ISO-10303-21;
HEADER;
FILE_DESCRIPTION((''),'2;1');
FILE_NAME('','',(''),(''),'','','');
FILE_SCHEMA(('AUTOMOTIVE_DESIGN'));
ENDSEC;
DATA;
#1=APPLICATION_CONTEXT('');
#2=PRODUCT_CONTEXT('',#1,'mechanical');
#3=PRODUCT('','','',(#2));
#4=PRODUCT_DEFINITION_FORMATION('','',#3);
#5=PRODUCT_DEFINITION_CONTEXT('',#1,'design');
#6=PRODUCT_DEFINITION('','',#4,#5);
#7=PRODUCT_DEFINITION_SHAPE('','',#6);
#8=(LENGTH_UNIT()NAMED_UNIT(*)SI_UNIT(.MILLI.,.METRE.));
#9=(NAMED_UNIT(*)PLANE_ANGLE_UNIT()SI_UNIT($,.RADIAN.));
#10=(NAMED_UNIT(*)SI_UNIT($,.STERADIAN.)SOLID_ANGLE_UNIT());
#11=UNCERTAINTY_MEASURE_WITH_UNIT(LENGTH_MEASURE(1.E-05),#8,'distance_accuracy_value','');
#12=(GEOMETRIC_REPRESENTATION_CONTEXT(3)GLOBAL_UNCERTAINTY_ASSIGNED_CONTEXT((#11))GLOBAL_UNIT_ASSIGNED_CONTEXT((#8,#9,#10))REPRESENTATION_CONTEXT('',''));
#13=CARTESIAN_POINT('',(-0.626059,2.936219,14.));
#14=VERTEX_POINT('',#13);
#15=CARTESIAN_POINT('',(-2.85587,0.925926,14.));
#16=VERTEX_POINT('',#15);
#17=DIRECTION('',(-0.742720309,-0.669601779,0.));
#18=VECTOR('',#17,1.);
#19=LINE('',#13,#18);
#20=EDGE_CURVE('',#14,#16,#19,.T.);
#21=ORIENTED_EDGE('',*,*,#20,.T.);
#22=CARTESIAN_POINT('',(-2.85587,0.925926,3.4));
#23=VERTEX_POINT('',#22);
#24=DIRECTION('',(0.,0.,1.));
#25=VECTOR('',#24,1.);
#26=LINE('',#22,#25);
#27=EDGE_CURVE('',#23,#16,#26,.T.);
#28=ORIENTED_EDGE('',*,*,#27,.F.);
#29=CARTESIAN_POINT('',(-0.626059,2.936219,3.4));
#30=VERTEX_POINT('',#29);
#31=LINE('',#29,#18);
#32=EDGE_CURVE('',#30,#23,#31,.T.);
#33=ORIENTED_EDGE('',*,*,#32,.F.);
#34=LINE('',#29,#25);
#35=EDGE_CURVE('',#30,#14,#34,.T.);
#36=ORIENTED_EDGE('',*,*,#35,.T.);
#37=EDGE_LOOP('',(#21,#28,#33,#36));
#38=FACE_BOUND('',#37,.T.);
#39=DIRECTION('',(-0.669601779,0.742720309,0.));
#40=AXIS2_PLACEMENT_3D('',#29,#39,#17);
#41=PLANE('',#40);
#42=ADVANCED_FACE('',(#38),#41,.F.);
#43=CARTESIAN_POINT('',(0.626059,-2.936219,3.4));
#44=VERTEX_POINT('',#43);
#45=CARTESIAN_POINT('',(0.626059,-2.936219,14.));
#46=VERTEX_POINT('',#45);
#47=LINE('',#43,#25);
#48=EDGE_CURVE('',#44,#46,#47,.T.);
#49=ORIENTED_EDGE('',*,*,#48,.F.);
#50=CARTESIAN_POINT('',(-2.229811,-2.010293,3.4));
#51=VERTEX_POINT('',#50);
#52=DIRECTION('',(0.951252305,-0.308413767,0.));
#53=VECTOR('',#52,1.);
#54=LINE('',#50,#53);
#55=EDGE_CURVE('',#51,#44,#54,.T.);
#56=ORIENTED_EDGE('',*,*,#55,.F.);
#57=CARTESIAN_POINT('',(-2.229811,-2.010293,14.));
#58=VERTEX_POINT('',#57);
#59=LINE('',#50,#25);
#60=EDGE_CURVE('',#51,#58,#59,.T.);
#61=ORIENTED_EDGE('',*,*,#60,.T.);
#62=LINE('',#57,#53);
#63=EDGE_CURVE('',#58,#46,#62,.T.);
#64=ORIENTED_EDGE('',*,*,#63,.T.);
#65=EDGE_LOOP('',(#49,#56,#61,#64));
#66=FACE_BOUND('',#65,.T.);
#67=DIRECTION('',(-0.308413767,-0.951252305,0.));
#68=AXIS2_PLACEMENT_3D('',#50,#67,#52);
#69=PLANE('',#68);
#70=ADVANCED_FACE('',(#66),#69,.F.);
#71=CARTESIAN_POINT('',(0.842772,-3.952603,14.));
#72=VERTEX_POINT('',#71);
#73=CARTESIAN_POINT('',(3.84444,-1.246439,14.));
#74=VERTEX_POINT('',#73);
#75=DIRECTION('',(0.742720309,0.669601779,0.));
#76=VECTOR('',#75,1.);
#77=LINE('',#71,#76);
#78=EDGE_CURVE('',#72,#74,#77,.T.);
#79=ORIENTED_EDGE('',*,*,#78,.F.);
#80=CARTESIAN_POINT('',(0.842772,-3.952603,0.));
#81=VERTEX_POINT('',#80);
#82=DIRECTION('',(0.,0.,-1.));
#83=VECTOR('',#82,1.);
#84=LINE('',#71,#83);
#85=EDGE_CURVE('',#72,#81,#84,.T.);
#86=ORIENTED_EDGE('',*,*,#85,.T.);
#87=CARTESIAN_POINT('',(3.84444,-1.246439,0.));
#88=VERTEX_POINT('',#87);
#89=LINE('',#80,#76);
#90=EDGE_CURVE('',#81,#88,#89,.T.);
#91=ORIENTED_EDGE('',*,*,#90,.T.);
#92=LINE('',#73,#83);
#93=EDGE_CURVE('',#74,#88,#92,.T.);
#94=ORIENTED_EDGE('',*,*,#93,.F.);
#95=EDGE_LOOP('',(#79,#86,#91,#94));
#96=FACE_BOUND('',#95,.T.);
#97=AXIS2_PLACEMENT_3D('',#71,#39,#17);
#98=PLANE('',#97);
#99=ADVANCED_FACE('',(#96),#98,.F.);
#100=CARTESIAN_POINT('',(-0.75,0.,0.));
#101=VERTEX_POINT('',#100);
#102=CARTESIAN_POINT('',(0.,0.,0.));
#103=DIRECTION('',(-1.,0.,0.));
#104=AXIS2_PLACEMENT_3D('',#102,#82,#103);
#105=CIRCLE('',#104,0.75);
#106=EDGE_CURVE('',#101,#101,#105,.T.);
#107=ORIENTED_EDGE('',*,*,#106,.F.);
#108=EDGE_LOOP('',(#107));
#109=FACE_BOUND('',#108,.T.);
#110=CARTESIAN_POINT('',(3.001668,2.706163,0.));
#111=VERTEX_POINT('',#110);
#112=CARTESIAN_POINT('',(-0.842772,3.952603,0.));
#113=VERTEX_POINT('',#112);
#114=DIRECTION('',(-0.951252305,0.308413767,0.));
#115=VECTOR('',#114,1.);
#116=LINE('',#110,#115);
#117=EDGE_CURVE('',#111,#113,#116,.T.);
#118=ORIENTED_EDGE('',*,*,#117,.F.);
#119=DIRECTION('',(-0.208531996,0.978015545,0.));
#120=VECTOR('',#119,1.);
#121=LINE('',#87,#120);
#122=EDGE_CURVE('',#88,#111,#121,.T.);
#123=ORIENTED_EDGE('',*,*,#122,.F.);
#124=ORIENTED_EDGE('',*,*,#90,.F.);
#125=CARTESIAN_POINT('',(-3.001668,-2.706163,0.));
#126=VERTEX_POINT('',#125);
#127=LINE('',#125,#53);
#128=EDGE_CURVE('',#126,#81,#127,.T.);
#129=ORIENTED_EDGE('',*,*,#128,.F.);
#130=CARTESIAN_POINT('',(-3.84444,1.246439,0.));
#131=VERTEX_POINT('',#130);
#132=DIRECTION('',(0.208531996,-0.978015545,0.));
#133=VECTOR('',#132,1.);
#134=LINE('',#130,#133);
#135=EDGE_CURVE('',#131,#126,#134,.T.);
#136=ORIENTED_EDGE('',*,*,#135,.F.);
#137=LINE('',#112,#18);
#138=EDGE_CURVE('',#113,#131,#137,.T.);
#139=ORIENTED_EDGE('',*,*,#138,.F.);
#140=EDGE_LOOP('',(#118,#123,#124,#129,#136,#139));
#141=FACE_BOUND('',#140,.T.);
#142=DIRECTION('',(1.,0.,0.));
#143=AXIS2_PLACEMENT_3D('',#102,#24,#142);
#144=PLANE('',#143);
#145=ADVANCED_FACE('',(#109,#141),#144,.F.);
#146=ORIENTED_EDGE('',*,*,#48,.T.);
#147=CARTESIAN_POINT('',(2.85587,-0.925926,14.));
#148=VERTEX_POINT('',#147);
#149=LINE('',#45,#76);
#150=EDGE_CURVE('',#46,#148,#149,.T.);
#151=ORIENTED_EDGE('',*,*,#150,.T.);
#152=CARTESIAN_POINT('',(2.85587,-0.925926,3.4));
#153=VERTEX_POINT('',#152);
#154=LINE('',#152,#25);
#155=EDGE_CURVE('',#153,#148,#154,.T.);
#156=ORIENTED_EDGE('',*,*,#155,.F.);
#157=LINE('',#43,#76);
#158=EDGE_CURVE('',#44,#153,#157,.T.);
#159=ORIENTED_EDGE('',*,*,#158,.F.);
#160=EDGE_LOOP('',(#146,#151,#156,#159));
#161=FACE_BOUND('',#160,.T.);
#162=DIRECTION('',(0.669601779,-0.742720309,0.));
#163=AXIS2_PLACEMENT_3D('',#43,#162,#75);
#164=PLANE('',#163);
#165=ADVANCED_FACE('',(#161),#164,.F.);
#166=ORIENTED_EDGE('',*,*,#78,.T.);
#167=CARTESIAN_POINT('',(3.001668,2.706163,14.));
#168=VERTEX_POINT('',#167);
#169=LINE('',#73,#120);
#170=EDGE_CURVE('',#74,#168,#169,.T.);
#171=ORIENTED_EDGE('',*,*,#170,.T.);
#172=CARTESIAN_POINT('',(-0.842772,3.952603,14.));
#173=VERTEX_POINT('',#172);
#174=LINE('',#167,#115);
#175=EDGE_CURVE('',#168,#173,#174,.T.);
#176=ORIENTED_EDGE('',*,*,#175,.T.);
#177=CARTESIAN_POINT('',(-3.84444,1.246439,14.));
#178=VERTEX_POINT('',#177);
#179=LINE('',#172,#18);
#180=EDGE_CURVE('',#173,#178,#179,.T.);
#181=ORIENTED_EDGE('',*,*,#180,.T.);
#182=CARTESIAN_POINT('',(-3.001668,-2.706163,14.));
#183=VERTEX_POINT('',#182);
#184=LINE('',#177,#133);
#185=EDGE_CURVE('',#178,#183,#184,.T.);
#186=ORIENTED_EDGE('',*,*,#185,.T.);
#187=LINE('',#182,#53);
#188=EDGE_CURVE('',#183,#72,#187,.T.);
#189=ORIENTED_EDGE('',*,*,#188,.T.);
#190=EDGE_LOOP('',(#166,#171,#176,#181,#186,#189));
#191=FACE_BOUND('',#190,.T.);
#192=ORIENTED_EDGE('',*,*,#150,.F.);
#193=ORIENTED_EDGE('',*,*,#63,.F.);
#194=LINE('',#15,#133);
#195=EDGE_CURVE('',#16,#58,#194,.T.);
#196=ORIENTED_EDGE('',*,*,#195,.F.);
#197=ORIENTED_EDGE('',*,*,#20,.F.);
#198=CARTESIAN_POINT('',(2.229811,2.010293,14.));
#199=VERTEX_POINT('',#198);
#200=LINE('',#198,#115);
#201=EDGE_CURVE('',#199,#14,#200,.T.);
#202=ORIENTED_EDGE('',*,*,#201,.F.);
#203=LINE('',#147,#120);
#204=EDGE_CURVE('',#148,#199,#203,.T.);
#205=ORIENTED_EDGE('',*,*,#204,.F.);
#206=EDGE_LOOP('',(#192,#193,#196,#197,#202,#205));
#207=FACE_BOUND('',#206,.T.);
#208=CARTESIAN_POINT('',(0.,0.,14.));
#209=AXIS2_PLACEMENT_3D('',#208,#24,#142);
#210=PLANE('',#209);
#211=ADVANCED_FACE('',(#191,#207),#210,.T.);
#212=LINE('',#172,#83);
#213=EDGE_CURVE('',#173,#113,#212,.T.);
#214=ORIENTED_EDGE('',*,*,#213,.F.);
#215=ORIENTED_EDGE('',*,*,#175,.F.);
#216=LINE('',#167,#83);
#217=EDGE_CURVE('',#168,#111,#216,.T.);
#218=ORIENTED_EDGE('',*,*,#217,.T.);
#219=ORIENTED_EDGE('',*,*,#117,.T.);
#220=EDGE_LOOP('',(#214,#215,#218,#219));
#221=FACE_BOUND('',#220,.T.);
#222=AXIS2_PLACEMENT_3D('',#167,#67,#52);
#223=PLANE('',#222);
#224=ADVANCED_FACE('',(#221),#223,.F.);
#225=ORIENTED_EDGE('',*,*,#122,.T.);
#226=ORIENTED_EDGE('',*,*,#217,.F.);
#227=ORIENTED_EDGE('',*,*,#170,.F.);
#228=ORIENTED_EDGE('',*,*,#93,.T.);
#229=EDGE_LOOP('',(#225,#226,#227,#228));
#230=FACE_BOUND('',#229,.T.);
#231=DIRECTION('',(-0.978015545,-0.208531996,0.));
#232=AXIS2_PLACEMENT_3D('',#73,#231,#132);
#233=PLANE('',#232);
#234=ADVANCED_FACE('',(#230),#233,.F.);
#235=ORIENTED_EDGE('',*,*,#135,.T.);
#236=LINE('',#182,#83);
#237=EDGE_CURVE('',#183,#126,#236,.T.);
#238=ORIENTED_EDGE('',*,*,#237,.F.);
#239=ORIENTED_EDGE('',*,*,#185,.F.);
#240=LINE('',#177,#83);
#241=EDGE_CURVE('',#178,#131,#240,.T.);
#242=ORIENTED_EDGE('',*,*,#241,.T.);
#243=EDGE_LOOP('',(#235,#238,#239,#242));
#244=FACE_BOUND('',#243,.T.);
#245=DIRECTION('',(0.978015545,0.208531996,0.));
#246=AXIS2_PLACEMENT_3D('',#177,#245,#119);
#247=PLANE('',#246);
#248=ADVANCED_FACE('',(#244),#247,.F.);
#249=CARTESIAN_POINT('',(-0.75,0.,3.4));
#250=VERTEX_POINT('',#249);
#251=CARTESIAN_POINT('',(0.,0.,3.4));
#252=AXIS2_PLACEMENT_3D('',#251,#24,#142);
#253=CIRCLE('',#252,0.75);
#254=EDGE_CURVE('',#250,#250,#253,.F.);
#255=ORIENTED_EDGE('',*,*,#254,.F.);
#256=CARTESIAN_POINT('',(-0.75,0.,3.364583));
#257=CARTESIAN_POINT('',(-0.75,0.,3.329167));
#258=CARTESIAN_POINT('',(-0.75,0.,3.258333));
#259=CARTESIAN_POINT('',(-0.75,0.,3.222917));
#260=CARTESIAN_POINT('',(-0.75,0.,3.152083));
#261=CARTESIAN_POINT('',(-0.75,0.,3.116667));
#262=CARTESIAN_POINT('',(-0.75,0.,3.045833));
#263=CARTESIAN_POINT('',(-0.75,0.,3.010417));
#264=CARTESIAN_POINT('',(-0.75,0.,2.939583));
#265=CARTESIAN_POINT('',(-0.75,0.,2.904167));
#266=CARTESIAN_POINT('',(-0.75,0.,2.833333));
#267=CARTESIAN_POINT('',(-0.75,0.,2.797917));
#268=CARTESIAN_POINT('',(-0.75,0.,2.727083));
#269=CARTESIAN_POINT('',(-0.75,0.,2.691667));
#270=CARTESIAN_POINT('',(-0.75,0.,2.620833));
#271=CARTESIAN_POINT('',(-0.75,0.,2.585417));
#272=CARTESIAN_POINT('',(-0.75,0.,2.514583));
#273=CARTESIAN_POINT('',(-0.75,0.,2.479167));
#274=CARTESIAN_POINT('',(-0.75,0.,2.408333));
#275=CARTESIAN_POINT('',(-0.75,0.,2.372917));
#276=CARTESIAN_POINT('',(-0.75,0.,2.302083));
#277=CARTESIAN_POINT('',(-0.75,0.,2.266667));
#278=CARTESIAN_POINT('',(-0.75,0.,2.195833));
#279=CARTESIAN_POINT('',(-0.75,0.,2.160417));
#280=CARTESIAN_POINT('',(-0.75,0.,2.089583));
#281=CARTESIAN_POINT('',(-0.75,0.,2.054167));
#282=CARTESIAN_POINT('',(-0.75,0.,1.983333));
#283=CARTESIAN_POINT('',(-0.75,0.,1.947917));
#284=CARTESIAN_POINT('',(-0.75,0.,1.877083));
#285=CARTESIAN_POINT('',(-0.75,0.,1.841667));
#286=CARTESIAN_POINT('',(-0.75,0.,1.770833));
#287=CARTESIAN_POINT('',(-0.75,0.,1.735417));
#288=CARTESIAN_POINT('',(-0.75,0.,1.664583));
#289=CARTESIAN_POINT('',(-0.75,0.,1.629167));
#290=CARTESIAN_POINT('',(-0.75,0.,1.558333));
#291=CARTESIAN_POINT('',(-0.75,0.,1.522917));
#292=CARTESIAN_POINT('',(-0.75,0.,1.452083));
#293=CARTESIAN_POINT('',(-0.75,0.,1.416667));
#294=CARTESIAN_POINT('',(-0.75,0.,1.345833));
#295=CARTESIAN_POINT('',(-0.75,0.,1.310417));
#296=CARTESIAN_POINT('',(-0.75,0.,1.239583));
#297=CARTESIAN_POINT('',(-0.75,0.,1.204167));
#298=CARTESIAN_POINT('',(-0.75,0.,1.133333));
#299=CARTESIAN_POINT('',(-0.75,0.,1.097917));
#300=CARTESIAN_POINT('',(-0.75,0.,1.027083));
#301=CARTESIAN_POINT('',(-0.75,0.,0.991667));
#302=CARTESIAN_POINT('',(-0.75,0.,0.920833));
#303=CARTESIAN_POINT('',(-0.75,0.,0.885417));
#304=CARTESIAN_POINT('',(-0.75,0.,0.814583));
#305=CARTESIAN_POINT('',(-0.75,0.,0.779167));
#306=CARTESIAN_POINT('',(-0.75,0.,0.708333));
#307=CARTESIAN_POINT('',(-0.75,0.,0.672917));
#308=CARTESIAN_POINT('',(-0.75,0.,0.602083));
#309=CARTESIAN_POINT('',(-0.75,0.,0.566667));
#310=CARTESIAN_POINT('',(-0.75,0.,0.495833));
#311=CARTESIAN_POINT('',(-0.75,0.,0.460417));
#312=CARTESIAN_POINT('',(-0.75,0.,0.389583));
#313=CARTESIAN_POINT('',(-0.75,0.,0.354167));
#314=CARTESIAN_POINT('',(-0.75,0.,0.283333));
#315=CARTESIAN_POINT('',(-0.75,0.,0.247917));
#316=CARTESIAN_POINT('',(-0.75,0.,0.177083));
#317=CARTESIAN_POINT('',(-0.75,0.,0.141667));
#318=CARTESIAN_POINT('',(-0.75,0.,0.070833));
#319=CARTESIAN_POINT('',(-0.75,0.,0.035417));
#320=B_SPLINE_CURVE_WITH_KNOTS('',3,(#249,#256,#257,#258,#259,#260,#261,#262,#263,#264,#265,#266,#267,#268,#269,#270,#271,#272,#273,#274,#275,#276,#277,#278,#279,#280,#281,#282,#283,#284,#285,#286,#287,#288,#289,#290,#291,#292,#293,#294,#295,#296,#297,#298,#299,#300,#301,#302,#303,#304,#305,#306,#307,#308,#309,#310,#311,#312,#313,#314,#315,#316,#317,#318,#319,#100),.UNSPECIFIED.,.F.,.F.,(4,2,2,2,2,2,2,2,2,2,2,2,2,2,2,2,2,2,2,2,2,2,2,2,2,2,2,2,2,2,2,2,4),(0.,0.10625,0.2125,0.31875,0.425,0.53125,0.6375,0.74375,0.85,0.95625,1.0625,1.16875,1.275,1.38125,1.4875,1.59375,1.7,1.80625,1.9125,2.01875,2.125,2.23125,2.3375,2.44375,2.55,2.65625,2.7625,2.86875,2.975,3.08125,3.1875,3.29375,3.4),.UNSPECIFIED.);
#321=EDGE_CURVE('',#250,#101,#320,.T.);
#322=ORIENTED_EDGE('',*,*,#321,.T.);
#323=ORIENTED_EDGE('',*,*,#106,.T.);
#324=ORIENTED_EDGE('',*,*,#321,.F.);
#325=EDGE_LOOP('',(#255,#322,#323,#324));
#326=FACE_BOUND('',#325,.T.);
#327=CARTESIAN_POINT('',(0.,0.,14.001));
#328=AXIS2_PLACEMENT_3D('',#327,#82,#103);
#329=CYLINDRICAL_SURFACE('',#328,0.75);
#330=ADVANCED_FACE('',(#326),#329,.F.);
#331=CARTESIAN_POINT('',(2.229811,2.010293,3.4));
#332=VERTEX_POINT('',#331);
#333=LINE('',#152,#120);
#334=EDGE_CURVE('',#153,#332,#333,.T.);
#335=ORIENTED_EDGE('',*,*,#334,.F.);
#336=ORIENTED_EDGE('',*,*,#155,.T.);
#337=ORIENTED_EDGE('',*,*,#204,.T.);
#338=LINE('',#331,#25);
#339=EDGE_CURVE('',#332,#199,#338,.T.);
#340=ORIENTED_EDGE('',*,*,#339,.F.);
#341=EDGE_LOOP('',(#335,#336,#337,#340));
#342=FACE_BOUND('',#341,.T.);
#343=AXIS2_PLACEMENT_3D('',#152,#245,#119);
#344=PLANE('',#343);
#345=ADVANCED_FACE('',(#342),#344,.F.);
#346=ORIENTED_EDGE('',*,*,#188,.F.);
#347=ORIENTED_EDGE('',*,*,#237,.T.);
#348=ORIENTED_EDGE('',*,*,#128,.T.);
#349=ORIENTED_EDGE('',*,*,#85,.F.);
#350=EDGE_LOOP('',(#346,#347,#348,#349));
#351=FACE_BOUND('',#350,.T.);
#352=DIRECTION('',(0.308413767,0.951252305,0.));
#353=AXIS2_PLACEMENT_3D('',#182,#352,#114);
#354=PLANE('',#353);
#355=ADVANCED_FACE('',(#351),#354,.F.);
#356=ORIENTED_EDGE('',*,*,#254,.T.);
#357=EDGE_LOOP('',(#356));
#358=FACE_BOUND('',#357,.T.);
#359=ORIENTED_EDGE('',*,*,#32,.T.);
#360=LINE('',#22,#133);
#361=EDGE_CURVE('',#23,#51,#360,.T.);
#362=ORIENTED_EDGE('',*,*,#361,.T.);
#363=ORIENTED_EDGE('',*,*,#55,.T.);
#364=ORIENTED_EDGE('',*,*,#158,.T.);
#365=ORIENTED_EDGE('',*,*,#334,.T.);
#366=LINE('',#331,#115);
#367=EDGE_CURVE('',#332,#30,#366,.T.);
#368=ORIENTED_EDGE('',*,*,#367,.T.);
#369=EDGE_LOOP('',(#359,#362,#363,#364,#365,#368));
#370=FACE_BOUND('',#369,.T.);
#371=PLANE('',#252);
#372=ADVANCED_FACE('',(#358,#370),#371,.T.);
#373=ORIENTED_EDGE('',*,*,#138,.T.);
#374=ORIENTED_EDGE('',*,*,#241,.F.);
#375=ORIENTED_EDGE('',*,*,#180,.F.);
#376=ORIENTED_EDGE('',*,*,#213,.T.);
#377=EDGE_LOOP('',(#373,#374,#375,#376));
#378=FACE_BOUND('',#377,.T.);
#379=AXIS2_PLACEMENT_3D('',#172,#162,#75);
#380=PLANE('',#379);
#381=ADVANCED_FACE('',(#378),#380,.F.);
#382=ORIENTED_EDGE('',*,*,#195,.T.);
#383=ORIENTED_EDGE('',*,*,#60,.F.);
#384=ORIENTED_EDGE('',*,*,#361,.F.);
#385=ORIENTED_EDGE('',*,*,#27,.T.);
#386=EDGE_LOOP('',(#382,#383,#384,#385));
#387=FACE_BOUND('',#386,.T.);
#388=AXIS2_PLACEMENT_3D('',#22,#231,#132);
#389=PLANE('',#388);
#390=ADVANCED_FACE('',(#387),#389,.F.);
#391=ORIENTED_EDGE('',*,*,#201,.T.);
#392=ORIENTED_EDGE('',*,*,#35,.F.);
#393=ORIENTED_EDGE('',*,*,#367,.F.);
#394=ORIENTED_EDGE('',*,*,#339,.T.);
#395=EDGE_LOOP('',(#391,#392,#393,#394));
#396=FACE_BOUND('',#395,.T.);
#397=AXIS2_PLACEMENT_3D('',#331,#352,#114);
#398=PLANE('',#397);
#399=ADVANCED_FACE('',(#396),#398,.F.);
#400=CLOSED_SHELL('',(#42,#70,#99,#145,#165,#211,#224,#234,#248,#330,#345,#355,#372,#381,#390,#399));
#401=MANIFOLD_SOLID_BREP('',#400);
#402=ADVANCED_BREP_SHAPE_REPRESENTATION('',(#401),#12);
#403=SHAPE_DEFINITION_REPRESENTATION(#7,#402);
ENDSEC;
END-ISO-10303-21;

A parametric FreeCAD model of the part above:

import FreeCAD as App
import Part
import Sketcher


def add_polygon(sketch, points):
    """Adds a closed chain of lines whose ends are joined by coincident constraints."""
    first, n = sketch.GeometryCount, len(points)
    for a, b in zip(points, points[1:] + points[:1]):
        sketch.addGeometry(Part.LineSegment(App.Vector(*a, 0), App.Vector(*b, 0)), False)
    for i in range(n):
        sketch.addConstraint(Sketcher.Constraint("Coincident", first + i, 2, first + (i + 1) % n, 1))

doc = App.newDocument("Part")
body = doc.addObject("PartDesign::Body", "Body")

sketch1 = body.newObject("Sketcher::SketchObject", "Sketch")
sketch1.AttachmentSupport = (doc.getObject("XY_Plane"), [""])
sketch1.MapMode = "FlatFace"
add_polygon(sketch1, [(-0.842772, 3.952603), (-3.84444, 1.246439), (-3.001668, -2.706163), (0.842772, -3.952603), (3.84444, -1.246439), (3.001668, 2.706163)])
sketch1.addConstraint([
    Sketcher.Constraint("Symmetric", 0, 2, 3, 2, -1, 1),
    Sketcher.Constraint("Symmetric", 1, 2, 4, 2, -1, 1),
    Sketcher.Constraint("Symmetric", 2, 2, 5, 2, -1, 1),
    Sketcher.Constraint("Equal", 0, 1),
    Sketcher.Constraint("Equal", 1, 2),
    Sketcher.Constraint("Distance", 0, 4.041452),
    Sketcher.Constraint("DistanceX", 0, 2, -1, 1, 3.84444),
    Sketcher.Constraint("DistanceY", -1, 1, 0, 2, 1.246439),
    Sketcher.Constraint("DistanceX", 1, 2, -1, 1, 3.001668),
])
pad1 = body.newObject("PartDesign::Pad", "Pad")
pad1.Profile = sketch1
pad1.Length = 14

sketch2 = body.newObject("Sketcher::SketchObject", "Sketch001")
sketch2.AttachmentSupport = (doc.getObject("XY_Plane"), [""])
sketch2.MapMode = "FlatFace"
sketch2.AttachmentOffset = App.Placement(App.Vector(0, 0, 14), App.Rotation())
add_polygon(sketch2, [(2.229811, 2.010293), (-0.626059, 2.936219), (-2.85587, 0.925926), (-2.229811, -2.010293), (0.626059, -2.936219), (2.85587, -0.925926)])
sketch2.addConstraint([
    Sketcher.Constraint("Symmetric", 0, 2, 3, 2, -1, 1),
    Sketcher.Constraint("Symmetric", 1, 2, 4, 2, -1, 1),
    Sketcher.Constraint("Symmetric", 2, 2, 5, 2, -1, 1),
    Sketcher.Constraint("Equal", 0, 1),
    Sketcher.Constraint("Equal", 1, 2),
    Sketcher.Constraint("Distance", 0, 3.002221),
    Sketcher.Constraint("DistanceX", 0, 2, -1, 1, 0.626059),
    Sketcher.Constraint("DistanceY", -1, 1, 0, 2, 2.936219),
    Sketcher.Constraint("DistanceX", 1, 2, -1, 1, 2.85587),
])
pocket1 = body.newObject("PartDesign::Pocket", "Pocket")
pocket1.Profile = sketch2
pocket1.Length = 10.6

sketch3 = body.newObject("Sketcher::SketchObject", "Sketch002")
sketch3.AttachmentSupport = (doc.getObject("XY_Plane"), [""])
sketch3.MapMode = "FlatFace"
sketch3.addGeometry(Part.Circle(App.Vector(0, 0, 0), App.Vector(0, 0, 1), 0.75), False)
sketch3.addConstraint([
    Sketcher.Constraint("Coincident", 0, 3, -1, 1),
    Sketcher.Constraint("Diameter", 0, 1.5),
])
pocket2 = body.newObject("PartDesign::Pocket", "Pocket001")
pocket2.Profile = sketch3
pocket2.Type = "UpToFirst"
pocket2.Reversed = True

doc.recompute()
